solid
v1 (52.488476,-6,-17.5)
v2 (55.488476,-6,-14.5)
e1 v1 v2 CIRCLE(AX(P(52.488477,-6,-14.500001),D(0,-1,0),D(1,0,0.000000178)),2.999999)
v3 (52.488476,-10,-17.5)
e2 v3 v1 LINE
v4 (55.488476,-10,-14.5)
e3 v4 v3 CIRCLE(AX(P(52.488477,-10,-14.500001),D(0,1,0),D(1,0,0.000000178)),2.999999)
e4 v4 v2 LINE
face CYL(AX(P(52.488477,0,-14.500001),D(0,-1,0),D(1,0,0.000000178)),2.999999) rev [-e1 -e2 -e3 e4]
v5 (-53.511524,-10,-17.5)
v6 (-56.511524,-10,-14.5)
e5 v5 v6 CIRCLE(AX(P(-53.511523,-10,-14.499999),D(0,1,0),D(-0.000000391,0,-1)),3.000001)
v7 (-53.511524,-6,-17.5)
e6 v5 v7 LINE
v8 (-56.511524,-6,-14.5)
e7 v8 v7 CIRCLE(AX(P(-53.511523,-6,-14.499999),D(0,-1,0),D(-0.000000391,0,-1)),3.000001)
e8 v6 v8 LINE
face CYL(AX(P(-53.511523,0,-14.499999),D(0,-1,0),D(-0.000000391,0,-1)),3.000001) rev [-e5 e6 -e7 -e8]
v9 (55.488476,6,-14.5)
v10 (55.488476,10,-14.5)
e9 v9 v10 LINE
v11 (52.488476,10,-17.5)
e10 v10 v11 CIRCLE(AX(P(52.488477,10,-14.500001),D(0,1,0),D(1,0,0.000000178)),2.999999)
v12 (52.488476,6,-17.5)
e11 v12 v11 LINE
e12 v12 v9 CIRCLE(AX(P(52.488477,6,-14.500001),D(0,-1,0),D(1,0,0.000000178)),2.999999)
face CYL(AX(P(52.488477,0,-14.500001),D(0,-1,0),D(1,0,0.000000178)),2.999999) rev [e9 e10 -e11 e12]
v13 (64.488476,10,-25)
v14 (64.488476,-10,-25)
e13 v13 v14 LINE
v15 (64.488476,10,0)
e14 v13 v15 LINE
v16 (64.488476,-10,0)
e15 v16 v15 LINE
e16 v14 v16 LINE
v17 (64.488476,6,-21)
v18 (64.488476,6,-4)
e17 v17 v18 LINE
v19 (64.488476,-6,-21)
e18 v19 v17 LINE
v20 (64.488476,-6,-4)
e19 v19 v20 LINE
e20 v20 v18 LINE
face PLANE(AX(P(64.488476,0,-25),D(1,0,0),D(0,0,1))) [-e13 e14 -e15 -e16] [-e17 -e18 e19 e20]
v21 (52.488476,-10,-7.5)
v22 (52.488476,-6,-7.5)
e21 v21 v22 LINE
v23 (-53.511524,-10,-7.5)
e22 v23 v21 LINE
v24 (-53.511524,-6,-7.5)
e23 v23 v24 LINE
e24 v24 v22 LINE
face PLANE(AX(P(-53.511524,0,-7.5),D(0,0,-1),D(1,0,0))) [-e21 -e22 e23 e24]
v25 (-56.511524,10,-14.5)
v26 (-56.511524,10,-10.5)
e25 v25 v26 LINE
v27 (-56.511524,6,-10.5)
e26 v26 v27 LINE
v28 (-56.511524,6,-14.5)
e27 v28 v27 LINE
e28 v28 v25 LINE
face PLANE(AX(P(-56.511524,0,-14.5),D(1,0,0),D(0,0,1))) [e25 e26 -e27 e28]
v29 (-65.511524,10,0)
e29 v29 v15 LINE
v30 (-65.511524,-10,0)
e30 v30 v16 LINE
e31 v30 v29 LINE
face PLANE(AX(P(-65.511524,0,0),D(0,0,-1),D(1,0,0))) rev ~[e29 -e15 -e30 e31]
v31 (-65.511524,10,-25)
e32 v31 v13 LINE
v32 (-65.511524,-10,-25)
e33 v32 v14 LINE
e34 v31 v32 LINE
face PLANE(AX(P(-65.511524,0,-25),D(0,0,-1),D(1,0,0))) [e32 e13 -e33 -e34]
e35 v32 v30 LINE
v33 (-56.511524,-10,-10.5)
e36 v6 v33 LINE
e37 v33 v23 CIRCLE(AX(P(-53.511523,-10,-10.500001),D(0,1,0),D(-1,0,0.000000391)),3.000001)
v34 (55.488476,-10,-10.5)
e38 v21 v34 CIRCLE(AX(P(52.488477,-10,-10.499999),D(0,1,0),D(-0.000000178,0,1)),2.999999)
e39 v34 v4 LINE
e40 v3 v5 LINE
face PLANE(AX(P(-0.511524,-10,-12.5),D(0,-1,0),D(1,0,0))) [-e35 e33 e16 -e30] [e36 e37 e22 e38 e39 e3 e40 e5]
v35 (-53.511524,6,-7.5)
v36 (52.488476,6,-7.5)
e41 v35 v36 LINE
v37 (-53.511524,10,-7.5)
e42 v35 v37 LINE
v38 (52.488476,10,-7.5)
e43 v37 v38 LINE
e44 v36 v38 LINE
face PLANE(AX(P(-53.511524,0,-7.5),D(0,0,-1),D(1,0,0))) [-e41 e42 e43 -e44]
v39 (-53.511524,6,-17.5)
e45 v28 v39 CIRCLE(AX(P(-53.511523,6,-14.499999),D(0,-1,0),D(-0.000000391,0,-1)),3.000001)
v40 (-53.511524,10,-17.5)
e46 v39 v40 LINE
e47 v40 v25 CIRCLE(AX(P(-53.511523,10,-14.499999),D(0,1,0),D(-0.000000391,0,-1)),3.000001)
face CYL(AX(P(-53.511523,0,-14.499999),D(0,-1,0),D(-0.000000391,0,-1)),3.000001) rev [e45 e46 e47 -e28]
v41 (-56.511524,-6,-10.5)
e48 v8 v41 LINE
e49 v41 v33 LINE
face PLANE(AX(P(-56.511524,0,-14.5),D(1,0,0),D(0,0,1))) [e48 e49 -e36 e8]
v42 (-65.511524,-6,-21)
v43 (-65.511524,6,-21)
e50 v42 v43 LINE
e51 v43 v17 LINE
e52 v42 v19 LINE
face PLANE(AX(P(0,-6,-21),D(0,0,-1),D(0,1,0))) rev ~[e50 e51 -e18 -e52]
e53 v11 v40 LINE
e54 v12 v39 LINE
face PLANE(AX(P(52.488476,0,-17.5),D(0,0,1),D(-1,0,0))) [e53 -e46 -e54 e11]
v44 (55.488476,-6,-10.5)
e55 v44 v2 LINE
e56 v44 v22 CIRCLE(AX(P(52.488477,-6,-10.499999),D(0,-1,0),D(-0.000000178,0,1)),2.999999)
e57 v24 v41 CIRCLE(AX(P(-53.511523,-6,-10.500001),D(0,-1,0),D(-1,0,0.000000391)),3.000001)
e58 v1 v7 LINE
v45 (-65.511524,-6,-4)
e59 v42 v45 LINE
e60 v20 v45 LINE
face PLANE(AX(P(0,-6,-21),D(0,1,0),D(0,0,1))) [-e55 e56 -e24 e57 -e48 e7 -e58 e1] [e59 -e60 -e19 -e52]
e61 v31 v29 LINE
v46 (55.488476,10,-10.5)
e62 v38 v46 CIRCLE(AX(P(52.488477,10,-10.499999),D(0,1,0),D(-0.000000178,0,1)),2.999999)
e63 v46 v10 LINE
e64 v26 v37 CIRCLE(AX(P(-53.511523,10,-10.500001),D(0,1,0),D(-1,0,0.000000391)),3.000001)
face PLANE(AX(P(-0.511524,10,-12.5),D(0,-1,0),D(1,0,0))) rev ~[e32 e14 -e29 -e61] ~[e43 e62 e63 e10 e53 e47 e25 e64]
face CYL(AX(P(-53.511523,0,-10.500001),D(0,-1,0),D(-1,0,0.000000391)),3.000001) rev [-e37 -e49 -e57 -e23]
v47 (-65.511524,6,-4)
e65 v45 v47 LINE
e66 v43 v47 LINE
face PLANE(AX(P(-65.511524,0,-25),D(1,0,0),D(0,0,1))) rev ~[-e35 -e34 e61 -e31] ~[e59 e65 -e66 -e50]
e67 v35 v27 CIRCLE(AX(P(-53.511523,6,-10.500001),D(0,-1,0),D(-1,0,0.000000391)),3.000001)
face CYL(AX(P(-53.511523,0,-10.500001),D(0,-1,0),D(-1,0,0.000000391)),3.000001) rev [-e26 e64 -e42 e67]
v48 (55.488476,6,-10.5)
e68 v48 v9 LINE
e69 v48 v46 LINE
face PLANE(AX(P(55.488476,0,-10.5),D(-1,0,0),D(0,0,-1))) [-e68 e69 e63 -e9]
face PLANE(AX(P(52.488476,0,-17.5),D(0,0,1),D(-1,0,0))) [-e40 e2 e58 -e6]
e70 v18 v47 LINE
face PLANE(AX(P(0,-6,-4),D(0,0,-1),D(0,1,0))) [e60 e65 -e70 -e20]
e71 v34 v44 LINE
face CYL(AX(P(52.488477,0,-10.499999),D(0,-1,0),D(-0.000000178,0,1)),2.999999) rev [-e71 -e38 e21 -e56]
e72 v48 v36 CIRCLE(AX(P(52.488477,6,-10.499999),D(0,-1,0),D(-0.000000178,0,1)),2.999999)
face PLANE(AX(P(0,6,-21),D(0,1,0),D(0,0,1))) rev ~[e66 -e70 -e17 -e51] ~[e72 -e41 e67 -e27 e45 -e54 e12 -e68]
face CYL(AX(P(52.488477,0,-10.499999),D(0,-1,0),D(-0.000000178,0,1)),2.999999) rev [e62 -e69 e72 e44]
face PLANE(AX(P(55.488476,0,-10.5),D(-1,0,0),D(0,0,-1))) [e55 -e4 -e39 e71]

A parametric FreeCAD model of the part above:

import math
import FreeCAD as App
import Part
import Sketcher
from FreeCAD import Vector

doc = App.newDocument("Part")
body = doc.addObject("PartDesign::Body", "Body")

# Sketch on XZ plane
sketch1 = body.newObject("Sketcher::SketchObject", "Sketch")
sketch1.AttachmentSupport = (doc.getObject("XZ_Plane"), [""])
sketch1.MapMode = "FlatFace"
sketch1.addGeometry([
    Part.LineSegment(Vector(-65.5, 0, 0), Vector(-65.5, -25, 0)),  # 0
    Part.LineSegment(Vector(-65.5, -25, 0), Vector(64.5, -25, 0)),  # 1
    Part.LineSegment(Vector(64.5, -25, 0), Vector(64.5, 0, 0)),  # 2
    Part.LineSegment(Vector(64.5, 0, 0), Vector(-65.5, 0, 0)),  # 3
    Part.LineSegment(Vector(-56.5, -14.5, 0), Vector(-56.5, -10.5, 0)),  # 4
    Part.ArcOfCircle(Part.Circle(Vector(-53.5, -10.5, 0), Vector(0, 0, 1), 3), math.radians(90), math.radians(180)),  # 5
    Part.LineSegment(Vector(-53.5, -7.5, 0), Vector(52.5, -7.5, 0)),  # 6
    Part.ArcOfCircle(Part.Circle(Vector(52.5, -10.5, 0), Vector(0, 0, 1), 3), math.radians(0), math.radians(90)),  # 7
    Part.LineSegment(Vector(55.5, -10.5, 0), Vector(55.5, -14.5, 0)),  # 8
    Part.ArcOfCircle(Part.Circle(Vector(52.5, -14.5, 0), Vector(0, 0, 1), 3), math.radians(-90), math.radians(0)),  # 9
    Part.LineSegment(Vector(52.5, -17.5, 0), Vector(-53.5, -17.5, 0)),  # 10
    Part.ArcOfCircle(Part.Circle(Vector(-53.5, -14.5, 0), Vector(0, 0, 1), 3), math.radians(-180), math.radians(-90)),  # 11
], False)
sketch1.addConstraint([
    Sketcher.Constraint("Coincident", 0, 2, 1, 1),
    Sketcher.Constraint("Coincident", 1, 2, 2, 1),
    Sketcher.Constraint("Coincident", 2, 2, 3, 1),
    Sketcher.Constraint("Coincident", 3, 2, 0, 1),
    Sketcher.Constraint("Tangent", 4, 2, 5, 2),
    Sketcher.Constraint("Tangent", 5, 1, 6, 1),
    Sketcher.Constraint("Tangent", 6, 2, 7, 2),
    Sketcher.Constraint("Tangent", 7, 1, 8, 1),
    Sketcher.Constraint("Tangent", 8, 2, 9, 2),
    Sketcher.Constraint("Tangent", 9, 1, 10, 1),
    Sketcher.Constraint("Tangent", 10, 2, 11, 2),
    Sketcher.Constraint("Tangent", 11, 1, 4, 1),
    Sketcher.Constraint("Vertical", 0),
    Sketcher.Constraint("Horizontal", 1),
    Sketcher.Constraint("Vertical", 2),
    Sketcher.Constraint("Horizontal", 3),
    Sketcher.Constraint("Vertical", 4),
    Sketcher.Constraint("Horizontal", 6),
    Sketcher.Constraint("Vertical", 8),
    Sketcher.Constraint("Horizontal", 10),
    Sketcher.Constraint("Equal", 5, 7),
    Sketcher.Constraint("Equal", 7, 9),
    Sketcher.Constraint("Equal", 9, 11),
    Sketcher.Constraint("PointOnObject", 2, 2, -1),
    Sketcher.Constraint("Radius", 5, 3.000001),
    Sketcher.Constraint("DistanceX", 1, 1, 1, 2, 130.0),
    Sketcher.Constraint("DistanceX", 6, 1, 6, 2, 106.0),
    Sketcher.Constraint("DistanceY", 0, 2, 0, 1, 25.0),
    Sketcher.Constraint("DistanceY", 4, 1, 4, 2, 4.0),
    Sketcher.Constraint("DistanceX", 0, 2, 11, 3, 12.000001),
    Sketcher.Constraint("DistanceY", 5, 3, -1, 1, 10.500001),
    Sketcher.Constraint("DistanceX", 5, 3, -1, 1, 53.511523),
])
pad1 = body.newObject("PartDesign::Pad", "Pad")
pad1.Profile = sketch1
pad1.Length = 20
pad1.Midplane = True

# Sketch on YZ plane
sketch2 = body.newObject("Sketcher::SketchObject", "Sketch001")
sketch2.AttachmentSupport = (doc.getObject("YZ_Plane"), [""])
sketch2.MapMode = "FlatFace"
sketch2.addGeometry([
    Part.LineSegment(Vector(-6, -4, 0), Vector(-6, -21, 0)),
    Part.LineSegment(Vector(-6, -21, 0), Vector(6, -21, 0)),
    Part.LineSegment(Vector(6, -21, 0), Vector(6, -4, 0)),
    Part.LineSegment(Vector(6, -4, 0), Vector(-6, -4, 0)),
], False)
sketch2.addConstraint([
    Sketcher.Constraint("Coincident", 0, 2, 1, 1),
    Sketcher.Constraint("Coincident", 1, 2, 2, 1),
    Sketcher.Constraint("Coincident", 2, 2, 3, 1),
    Sketcher.Constraint("Coincident", 3, 2, 0, 1),
    Sketcher.Constraint("Vertical", 0),
    Sketcher.Constraint("Horizontal", 1),
    Sketcher.Constraint("Vertical", 2),
    Sketcher.Constraint("Horizontal", 3),
    Sketcher.Constraint("DistanceX", 1, 1, 1, 2, 12.0),
    Sketcher.Constraint("DistanceY", 0, 2, 0, 1, 17.0),
    Sketcher.Constraint("DistanceX", 0, 2, -1, 1, 6.0),
    Sketcher.Constraint("DistanceY", 0, 2, -1, 1, 21.0),
])
pocket1 = body.newObject("PartDesign::Pocket", "Pocket")
pocket1.Profile = sketch2
pocket1.Length = 172.6
pocket1.Midplane = True

doc.recompute()
